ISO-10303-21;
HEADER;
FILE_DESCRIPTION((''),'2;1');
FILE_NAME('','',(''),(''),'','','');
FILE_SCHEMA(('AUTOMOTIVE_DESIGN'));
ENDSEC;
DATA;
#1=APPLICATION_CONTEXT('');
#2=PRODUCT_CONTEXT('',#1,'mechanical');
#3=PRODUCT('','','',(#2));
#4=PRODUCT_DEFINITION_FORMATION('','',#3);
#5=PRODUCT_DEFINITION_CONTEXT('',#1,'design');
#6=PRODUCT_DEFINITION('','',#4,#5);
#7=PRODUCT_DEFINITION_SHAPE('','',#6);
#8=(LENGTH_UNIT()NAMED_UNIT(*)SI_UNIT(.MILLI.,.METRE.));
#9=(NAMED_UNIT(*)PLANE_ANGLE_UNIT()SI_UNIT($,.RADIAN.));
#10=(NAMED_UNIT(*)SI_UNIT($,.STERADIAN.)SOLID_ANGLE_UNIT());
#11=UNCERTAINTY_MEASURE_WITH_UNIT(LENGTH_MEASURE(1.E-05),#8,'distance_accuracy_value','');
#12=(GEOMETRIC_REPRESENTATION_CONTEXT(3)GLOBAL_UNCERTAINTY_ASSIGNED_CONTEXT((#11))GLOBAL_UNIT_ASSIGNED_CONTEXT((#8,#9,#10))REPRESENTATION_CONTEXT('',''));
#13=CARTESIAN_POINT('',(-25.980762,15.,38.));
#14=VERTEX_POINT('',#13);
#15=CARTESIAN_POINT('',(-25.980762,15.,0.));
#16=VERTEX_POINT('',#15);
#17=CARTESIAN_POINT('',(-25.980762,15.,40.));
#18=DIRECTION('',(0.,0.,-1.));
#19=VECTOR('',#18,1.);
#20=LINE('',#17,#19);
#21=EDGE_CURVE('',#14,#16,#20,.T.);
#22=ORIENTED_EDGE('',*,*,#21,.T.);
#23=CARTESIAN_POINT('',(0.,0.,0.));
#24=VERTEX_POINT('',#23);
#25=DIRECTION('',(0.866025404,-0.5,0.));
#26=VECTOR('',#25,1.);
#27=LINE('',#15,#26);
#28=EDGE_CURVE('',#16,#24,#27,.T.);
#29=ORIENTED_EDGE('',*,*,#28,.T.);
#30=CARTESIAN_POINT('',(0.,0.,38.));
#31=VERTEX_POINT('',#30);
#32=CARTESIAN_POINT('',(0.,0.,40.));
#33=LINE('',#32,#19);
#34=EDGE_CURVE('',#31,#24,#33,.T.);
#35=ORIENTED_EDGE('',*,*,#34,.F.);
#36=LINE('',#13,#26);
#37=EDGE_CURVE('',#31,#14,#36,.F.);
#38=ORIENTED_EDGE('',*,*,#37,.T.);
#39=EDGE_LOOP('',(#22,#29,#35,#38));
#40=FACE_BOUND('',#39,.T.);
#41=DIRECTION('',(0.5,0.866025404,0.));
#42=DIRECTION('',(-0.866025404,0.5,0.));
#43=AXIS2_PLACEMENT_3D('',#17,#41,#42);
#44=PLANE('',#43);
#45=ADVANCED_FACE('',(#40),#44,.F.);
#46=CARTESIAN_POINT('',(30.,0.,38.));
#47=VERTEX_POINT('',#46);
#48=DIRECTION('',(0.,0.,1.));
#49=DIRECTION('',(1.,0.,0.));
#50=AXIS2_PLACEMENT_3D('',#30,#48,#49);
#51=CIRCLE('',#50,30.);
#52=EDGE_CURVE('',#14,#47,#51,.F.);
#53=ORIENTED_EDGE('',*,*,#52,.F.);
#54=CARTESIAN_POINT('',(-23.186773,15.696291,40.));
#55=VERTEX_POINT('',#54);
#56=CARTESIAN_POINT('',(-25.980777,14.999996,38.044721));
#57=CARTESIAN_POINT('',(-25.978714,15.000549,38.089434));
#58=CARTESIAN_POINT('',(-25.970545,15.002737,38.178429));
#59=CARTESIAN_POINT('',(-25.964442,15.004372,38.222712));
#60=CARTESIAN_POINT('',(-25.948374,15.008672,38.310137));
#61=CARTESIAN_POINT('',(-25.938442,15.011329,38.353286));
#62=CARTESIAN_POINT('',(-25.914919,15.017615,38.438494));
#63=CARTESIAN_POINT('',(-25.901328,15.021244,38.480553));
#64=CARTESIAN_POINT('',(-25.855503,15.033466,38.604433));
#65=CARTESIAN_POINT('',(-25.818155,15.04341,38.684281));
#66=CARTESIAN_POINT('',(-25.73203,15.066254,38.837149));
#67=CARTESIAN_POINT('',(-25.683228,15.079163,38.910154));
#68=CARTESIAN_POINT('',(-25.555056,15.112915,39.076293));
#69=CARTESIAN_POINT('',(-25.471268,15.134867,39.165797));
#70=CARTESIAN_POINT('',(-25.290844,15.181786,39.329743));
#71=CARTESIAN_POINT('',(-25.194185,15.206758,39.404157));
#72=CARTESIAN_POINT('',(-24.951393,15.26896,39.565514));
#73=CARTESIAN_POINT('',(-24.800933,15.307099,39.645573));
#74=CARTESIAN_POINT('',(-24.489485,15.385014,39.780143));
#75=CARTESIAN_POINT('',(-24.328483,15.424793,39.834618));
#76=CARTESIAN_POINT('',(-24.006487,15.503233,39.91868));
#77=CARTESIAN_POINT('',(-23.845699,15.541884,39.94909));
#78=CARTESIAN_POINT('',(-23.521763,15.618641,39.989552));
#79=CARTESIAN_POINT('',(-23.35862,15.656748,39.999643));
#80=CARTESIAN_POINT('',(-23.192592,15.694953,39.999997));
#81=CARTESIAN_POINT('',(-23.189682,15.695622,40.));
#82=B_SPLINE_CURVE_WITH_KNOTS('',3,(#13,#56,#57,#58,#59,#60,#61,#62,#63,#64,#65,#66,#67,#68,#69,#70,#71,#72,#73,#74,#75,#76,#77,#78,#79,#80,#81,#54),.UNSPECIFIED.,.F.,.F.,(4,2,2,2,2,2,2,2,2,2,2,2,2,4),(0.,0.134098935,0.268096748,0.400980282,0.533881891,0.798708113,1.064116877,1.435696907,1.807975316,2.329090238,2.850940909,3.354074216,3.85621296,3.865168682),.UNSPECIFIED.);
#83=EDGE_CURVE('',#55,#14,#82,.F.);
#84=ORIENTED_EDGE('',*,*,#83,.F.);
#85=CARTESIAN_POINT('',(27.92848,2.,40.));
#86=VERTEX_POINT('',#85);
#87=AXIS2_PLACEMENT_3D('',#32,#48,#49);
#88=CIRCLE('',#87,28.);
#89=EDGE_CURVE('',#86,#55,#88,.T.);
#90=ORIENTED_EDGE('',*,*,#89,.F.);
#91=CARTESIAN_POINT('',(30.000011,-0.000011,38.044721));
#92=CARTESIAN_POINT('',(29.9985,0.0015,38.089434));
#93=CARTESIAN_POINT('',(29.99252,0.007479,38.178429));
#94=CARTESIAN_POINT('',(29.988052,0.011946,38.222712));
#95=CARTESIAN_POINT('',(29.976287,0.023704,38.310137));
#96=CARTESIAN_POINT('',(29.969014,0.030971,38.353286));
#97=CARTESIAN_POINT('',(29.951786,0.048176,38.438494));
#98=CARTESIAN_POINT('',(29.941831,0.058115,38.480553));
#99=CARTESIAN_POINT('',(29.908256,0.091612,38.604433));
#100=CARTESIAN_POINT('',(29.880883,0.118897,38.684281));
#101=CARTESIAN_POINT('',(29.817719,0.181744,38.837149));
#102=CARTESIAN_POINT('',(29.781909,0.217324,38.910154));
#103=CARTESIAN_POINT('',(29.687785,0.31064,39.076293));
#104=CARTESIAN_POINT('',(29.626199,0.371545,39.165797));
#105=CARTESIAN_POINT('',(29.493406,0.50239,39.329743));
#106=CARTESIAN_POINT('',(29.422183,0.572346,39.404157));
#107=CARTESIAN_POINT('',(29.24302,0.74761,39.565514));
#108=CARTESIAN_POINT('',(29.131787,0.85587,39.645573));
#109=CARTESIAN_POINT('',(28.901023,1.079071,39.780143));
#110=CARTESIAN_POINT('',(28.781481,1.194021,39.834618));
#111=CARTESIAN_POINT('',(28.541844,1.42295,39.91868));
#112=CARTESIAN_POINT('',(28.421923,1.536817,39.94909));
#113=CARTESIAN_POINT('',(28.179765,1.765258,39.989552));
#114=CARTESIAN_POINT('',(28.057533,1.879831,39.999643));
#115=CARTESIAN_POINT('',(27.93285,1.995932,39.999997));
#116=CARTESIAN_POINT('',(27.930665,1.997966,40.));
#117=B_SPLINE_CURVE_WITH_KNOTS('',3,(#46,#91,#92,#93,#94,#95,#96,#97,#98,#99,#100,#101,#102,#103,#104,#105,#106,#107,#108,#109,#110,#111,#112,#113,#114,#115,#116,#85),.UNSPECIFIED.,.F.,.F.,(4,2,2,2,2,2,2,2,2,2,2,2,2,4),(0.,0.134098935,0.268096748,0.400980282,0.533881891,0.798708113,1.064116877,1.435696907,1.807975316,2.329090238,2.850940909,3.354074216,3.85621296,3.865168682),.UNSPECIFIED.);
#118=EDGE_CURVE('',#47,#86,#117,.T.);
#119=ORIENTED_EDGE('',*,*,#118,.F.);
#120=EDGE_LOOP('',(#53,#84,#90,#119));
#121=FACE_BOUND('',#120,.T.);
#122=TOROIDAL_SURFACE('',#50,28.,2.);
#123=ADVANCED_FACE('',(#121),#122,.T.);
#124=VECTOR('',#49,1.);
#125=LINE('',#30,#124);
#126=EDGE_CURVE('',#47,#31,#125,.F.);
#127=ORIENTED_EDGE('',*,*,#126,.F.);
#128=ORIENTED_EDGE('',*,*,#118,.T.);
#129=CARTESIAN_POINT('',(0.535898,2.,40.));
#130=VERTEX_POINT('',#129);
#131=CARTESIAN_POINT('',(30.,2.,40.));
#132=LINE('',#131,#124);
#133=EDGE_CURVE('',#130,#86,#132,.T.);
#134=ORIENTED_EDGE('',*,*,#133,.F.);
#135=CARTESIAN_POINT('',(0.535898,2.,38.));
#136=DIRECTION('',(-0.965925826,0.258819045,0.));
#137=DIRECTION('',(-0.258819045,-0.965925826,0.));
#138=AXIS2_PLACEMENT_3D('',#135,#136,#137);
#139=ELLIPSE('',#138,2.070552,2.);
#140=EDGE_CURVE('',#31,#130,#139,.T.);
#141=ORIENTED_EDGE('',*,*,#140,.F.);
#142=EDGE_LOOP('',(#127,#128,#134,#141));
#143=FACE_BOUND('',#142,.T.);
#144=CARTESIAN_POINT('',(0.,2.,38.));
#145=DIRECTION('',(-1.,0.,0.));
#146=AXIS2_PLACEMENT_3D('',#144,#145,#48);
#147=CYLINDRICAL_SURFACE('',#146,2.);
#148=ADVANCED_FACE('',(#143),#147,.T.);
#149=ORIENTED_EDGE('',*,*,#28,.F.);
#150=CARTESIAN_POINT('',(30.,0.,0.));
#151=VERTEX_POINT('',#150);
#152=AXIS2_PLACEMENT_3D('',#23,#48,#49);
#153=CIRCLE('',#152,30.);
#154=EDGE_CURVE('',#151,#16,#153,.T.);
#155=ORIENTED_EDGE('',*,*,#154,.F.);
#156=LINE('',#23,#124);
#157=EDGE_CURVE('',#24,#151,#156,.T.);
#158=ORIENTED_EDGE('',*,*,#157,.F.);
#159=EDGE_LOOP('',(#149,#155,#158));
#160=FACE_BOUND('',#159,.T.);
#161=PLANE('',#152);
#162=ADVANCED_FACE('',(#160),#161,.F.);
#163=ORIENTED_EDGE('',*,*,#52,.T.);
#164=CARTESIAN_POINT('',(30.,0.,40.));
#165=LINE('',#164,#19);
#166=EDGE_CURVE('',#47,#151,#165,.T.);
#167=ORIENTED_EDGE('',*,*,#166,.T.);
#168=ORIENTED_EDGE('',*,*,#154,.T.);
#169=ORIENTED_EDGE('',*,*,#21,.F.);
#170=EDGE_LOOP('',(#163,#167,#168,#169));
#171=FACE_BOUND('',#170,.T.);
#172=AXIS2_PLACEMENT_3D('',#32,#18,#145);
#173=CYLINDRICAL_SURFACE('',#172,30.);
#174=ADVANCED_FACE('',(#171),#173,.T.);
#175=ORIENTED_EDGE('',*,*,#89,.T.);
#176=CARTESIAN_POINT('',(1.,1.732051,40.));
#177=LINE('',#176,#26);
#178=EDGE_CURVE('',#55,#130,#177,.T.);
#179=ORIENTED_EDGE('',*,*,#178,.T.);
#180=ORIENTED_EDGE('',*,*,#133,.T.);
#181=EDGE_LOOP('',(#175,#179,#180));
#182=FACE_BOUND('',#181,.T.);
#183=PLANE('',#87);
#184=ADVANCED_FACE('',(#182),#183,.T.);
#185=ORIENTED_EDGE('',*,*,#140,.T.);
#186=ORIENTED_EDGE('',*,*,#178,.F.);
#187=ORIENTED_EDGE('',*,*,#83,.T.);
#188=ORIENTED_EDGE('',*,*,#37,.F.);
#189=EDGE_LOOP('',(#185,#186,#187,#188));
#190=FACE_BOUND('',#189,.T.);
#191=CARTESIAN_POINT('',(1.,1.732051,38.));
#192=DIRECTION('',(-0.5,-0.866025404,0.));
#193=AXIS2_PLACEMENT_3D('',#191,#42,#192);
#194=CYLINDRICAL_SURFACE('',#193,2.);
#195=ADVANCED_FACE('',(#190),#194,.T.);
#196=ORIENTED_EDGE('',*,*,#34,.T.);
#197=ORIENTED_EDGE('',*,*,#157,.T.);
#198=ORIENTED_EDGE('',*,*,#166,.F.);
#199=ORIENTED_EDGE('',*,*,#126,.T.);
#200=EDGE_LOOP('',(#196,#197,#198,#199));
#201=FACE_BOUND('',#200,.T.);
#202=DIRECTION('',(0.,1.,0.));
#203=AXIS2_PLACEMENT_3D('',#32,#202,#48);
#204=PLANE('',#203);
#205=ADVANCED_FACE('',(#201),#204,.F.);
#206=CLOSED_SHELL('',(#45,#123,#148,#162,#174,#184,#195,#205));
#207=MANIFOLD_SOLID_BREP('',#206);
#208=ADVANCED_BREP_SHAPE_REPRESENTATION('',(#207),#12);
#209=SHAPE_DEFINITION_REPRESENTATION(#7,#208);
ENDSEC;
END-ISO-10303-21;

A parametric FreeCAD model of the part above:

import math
import FreeCAD as App
import Part
import Sketcher
from FreeCAD import Vector
Q = App.Units.Quantity


def edges_at(feature, points):
    """Names of the edges that pass closest to the given points."""
    edges = feature.Shape.Edges
    near = lambda p: min(range(len(edges)), key=lambda i: edges[i].distToShape(Part.Vertex(*p))[0])
    return sorted({f"Edge{near(p) + 1}" for p in points})

doc = App.newDocument("Part")
body = doc.addObject("PartDesign::Body", "Body")

# Sketch on XY plane
sketch1 = body.newObject("Sketcher::SketchObject", "Sketch")
sketch1.AttachmentSupport = (doc.getObject("XY_Plane"), [""])
sketch1.MapMode = "FlatFace"
sketch1.addGeometry([
    Part.LineSegment(Vector(-26, 15, 0), Vector(0, 0, 0)),
    Part.LineSegment(Vector(0, 0, 0), Vector(30, 0, 0)),
    Part.ArcOfCircle(Part.Circle(Vector(0, 0, 0), Vector(0, 0, 1), 30), math.radians(0), math.radians(150)),
], False)
sketch1.addConstraint([
    Sketcher.Constraint("Coincident", 0, 2, 1, 1),
    Sketcher.Constraint("Coincident", 1, 2, 2, 1),
    Sketcher.Constraint("Coincident", 2, 2, 0, 1),
    Sketcher.Constraint("Horizontal", 1),
    Sketcher.Constraint("Coincident", 2, 3, -1, 1),
    Sketcher.Constraint("Coincident", 0, 2, -1, 1),
    Sketcher.Constraint("Radius", 2, 30.0),
    Sketcher.Constraint("Angle", 0, Q("-30 deg")),
])
pad1 = body.newObject("PartDesign::Pad", "Pad")
pad1.Profile = sketch1
pad1.Length = 40
doc.recompute()

fillet = body.newObject("PartDesign::Fillet", "Fillet")
fillet.Base = (pad1, edges_at(pad1, [(-12.99, 7.5, 40), (15, 0, 40), (7.765, 28.978, 40)]))
fillet.Radius = 2

doc.recompute()
